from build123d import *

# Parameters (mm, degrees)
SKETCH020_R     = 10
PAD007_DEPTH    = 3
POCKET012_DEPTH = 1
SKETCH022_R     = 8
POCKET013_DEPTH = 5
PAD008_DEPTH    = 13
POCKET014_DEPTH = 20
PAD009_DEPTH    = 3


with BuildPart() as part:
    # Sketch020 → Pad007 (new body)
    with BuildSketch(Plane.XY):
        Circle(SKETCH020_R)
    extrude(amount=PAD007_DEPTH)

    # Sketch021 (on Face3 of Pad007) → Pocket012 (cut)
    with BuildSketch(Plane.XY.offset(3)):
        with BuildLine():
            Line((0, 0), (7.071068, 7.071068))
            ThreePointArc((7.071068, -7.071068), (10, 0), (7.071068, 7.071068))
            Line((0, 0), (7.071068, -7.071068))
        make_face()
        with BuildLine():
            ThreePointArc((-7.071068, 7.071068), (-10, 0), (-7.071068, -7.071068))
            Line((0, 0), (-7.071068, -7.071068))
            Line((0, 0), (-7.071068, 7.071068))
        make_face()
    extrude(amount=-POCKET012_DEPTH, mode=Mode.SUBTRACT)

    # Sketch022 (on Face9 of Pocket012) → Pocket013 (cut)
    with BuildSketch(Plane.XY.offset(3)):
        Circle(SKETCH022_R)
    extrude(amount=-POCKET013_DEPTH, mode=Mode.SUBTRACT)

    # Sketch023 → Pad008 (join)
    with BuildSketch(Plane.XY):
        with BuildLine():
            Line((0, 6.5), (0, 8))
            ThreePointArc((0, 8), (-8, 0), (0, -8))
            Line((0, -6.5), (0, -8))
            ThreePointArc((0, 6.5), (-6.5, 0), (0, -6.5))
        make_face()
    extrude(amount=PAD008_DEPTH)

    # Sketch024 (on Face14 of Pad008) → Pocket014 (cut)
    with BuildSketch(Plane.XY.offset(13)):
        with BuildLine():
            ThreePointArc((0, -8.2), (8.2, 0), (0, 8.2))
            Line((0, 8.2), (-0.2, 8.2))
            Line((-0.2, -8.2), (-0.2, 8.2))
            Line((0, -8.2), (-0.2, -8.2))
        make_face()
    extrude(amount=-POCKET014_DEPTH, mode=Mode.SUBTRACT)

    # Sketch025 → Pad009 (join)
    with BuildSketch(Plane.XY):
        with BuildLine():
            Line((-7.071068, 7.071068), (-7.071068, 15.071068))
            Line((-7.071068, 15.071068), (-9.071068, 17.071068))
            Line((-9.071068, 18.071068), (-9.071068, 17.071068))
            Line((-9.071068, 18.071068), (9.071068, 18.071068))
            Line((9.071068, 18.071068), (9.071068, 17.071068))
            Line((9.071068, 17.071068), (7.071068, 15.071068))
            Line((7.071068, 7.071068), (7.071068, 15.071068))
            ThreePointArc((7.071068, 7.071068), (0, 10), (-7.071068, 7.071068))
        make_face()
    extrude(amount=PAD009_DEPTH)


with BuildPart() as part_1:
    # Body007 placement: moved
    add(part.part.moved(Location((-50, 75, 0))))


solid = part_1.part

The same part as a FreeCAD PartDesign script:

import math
import FreeCAD as App
import Part
import Sketcher

doc = App.newDocument("Part")
body = doc.addObject("PartDesign::Body", "Body")

sketch1 = body.newObject("Sketcher::SketchObject", "Sketch")
sketch1.AttachmentSupport = (doc.getObject("XY_Plane"), [""])
sketch1.MapMode = "FlatFace"
sketch1.addGeometry(Part.Circle(App.Vector(0, 0, 0), App.Vector(0, 0, 1), 10), False)
sketch1.addConstraint(Sketcher.Constraint("Coincident", 0, 3, -1, 1))
sketch1.addConstraint(Sketcher.Constraint("Diameter", 0, 20.0))
pad1 = body.newObject("PartDesign::Pad", "Pad")
pad1.Profile = sketch1
pad1.Length = 3

sketch2 = body.newObject("Sketcher::SketchObject", "Sketch001")
sketch2.AttachmentSupport = (doc.getObject("XY_Plane"), [""])
sketch2.MapMode = "FlatFace"
sketch2.AttachmentOffset = App.Placement(App.Vector(0, 0, 3), App.Rotation())
sketch2.addGeometry(Part.LineSegment(App.Vector(7, 7, 0), App.Vector(0, 0, 0)), False)
sketch2.addGeometry(Part.LineSegment(App.Vector(0, 0, 0), App.Vector(7, -7, 0)), False)
sketch2.addGeometry(Part.ArcOfCircle(Part.Circle(App.Vector(0, 0, 0), App.Vector(0, 0, 1), 10), math.radians(-45), math.radians(45)), False)
sketch2.addGeometry(Part.ArcOfCircle(Part.Circle(App.Vector(0, 0, 0), App.Vector(0, 0, 1), 10), math.radians(135), math.radians(225)), False)
sketch2.addGeometry(Part.LineSegment(App.Vector(-7, -7, 0), App.Vector(0, 0, 0)), False)
sketch2.addGeometry(Part.LineSegment(App.Vector(0, 0, 0), App.Vector(-7, 7, 0)), False)
sketch2.addConstraint(Sketcher.Constraint("Coincident", 0, 2, 1, 1))
sketch2.addConstraint(Sketcher.Constraint("Coincident", 1, 2, 2, 1))
sketch2.addConstraint(Sketcher.Constraint("Coincident", 2, 2, 0, 1))
sketch2.addConstraint(Sketcher.Constraint("Coincident", 3, 2, 4, 1))
sketch2.addConstraint(Sketcher.Constraint("Coincident", 4, 2, 5, 1))
sketch2.addConstraint(Sketcher.Constraint("Coincident", 5, 2, 3, 1))
sketch2.addConstraint(Sketcher.Constraint("Coincident", 2, 3, -1, 1))
sketch2.addConstraint(Sketcher.Constraint("Coincident", 3, 3, -1, 1))
sketch2.addConstraint(Sketcher.Constraint("Coincident", 0, 2, -1, 1))
sketch2.addConstraint(Sketcher.Constraint("Coincident", 4, 2, -1, 1))
sketch2.addConstraint(Sketcher.Constraint("Equal", 2, 3))
sketch2.addConstraint(Sketcher.Constraint("Perpendicular", 0, 1))
sketch2.addConstraint(Sketcher.Constraint("Perpendicular", 1, 4))
sketch2.addConstraint(Sketcher.Constraint("Perpendicular", 4, 5))
sketch2.addConstraint(Sketcher.Constraint("Horizontal", 1, 2, 3, 2))
sketch2.addConstraint(Sketcher.Constraint("Radius", 2, 10.000001))
pocket1 = body.newObject("PartDesign::Pocket", "Pocket")
pocket1.Profile = sketch2
pocket1.Length = 1

sketch3 = body.newObject("Sketcher::SketchObject", "Sketch002")
sketch3.AttachmentSupport = (doc.getObject("XY_Plane"), [""])
sketch3.MapMode = "FlatFace"
sketch3.AttachmentOffset = App.Placement(App.Vector(0, 0, 3), App.Rotation())
sketch3.addGeometry(Part.Circle(App.Vector(0, 0, 0), App.Vector(0, 0, 1), 8), False)
sketch3.addConstraint(Sketcher.Constraint("Coincident", 0, 3, -1, 1))
sketch3.addConstraint(Sketcher.Constraint("Diameter", 0, 16.0))
pocket2 = body.newObject("PartDesign::Pocket", "Pocket001")
pocket2.Profile = sketch3
pocket2.Length = 5

sketch4 = body.newObject("Sketcher::SketchObject", "Sketch003")
sketch4.AttachmentSupport = (doc.getObject("XY_Plane"), [""])
sketch4.MapMode = "FlatFace"
sketch4.addGeometry(Part.LineSegment(App.Vector(0, 6.5, 0), App.Vector(0, 8, 0)), False)
sketch4.addGeometry(Part.ArcOfCircle(Part.Circle(App.Vector(0, 0, 0), App.Vector(0, 0, 1), 8), math.radians(90), math.radians(270)), False)
sketch4.addGeometry(Part.LineSegment(App.Vector(0, -8, 0), App.Vector(0, -6.5, 0)), False)
sketch4.addGeometry(Part.ArcOfCircle(Part.Circle(App.Vector(0, 0, 0), App.Vector(0, 0, 1), 6.5), math.radians(90), math.radians(270)), False)
sketch4.addConstraint(Sketcher.Constraint("Coincident", 0, 2, 1, 1))
sketch4.addConstraint(Sketcher.Constraint("Coincident", 1, 2, 2, 1))
sketch4.addConstraint(Sketcher.Constraint("Coincident", 2, 2, 3, 2))
sketch4.addConstraint(Sketcher.Constraint("Coincident", 3, 1, 0, 1))
sketch4.addConstraint(Sketcher.Constraint("Vertical", 0))
sketch4.addConstraint(Sketcher.Constraint("Vertical", 2))
sketch4.addConstraint(Sketcher.Constraint("Coincident", 1, 3, -1, 1))
sketch4.addConstraint(Sketcher.Constraint("Coincident", 3, 3, -1, 1))
sketch4.addConstraint(Sketcher.Constraint("PointOnObject", 0, 2, -2))
sketch4.addConstraint(Sketcher.Constraint("PointOnObject", 1, 2, -2))
sketch4.addConstraint(Sketcher.Constraint("Radius", 1, 8.0))
sketch4.addConstraint(Sketcher.Constraint("Radius", 3, 6.5))
pad2 = body.newObject("PartDesign::Pad", "Pad001")
pad2.Profile = sketch4
pad2.Length = 13

sketch5 = body.newObject("Sketcher::SketchObject", "Sketch004")
sketch5.AttachmentSupport = (doc.getObject("XY_Plane"), [""])
sketch5.MapMode = "FlatFace"
sketch5.AttachmentOffset = App.Placement(App.Vector(0, 0, 13), App.Rotation())
sketch5.addGeometry(Part.ArcOfCircle(Part.Circle(App.Vector(0, 0, 0), App.Vector(0, 0, 1), 8.2), math.radians(-90), math.radians(90)), False)
sketch5.addGeometry(Part.LineSegment(App.Vector(0, 8.2, 0), App.Vector(-0.2, 8.2, 0)), False)
sketch5.addGeometry(Part.LineSegment(App.Vector(-0.2, 8.2, 0), App.Vector(-0.2, -8.2, 0)), False)
sketch5.addGeometry(Part.LineSegment(App.Vector(-0.2, -8.2, 0), App.Vector(0, -8.2, 0)), False)
sketch5.addConstraint(Sketcher.Constraint("Tangent", 0, 2, 1, 1))
sketch5.addConstraint(Sketcher.Constraint("Coincident", 1, 2, 2, 1))
sketch5.addConstraint(Sketcher.Constraint("Coincident", 2, 2, 3, 1))
sketch5.addConstraint(Sketcher.Constraint("Tangent", 3, 2, 0, 1))
sketch5.addConstraint(Sketcher.Constraint("Horizontal", 1))
sketch5.addConstraint(Sketcher.Constraint("Vertical", 2))
sketch5.addConstraint(Sketcher.Constraint("Horizontal", 3))
sketch5.addConstraint(Sketcher.Constraint("Coincident", 0, 3, -1, 1))
sketch5.addConstraint(Sketcher.Constraint("Radius", 0, 8.2))
sketch5.addConstraint(Sketcher.Constraint("DistanceX", 1, 2, 1, 1, 0.2))
pocket3 = body.newObject("PartDesign::Pocket", "Pocket002")
pocket3.Profile = sketch5
pocket3.Length = 20

sketch6 = body.newObject("Sketcher::SketchObject", "Sketch005")
sketch6.AttachmentSupport = (doc.getObject("XY_Plane"), [""])
sketch6.MapMode = "FlatFace"
sketch6.addGeometry(Part.LineSegment(App.Vector(-7.1, 15.1, 0), App.Vector(-7.1, 7.1, 0)), False)
sketch6.addGeometry(Part.ArcOfCircle(Part.Circle(App.Vector(0, 0, 0), App.Vector(0, 0, 1), 10), math.radians(45), math.radians(135)), False)
sketch6.addGeometry(Part.LineSegment(App.Vector(7.1, 7.1, 0), App.Vector(7.1, 15.1, 0)), False)
sketch6.addGeometry(Part.LineSegment(App.Vector(7.1, 15.1, 0), App.Vector(9.1, 17.1, 0)), False)
sketch6.addGeometry(Part.LineSegment(App.Vector(9.1, 17.1, 0), App.Vector(9.1, 18.1, 0)), False)
sketch6.addGeometry(Part.LineSegment(App.Vector(9.1, 18.1, 0), App.Vector(-9.1, 18.1, 0)), False)
sketch6.addGeometry(Part.LineSegment(App.Vector(-9.1, 18.1, 0), App.Vector(-9.1, 17.1, 0)), False)
sketch6.addGeometry(Part.LineSegment(App.Vector(-9.1, 17.1, 0), App.Vector(-7.1, 15.1, 0)), False)
sketch6.addConstraint(Sketcher.Constraint("Coincident", 0, 2, 1, 2))
sketch6.addConstraint(Sketcher.Constraint("Coincident", 1, 1, 2, 1))
sketch6.addConstraint(Sketcher.Constraint("Coincident", 2, 2, 3, 1))
sketch6.addConstraint(Sketcher.Constraint("Coincident", 3, 2, 4, 1))
sketch6.addConstraint(Sketcher.Constraint("Coincident", 4, 2, 5, 1))
sketch6.addConstraint(Sketcher.Constraint("Coincident", 5, 2, 6, 1))
sketch6.addConstraint(Sketcher.Constraint("Coincident", 6, 2, 7, 1))
sketch6.addConstraint(Sketcher.Constraint("Coincident", 7, 2, 0, 1))
sketch6.addConstraint(Sketcher.Constraint("Vertical", 0))
sketch6.addConstraint(Sketcher.Constraint("Vertical", 2))
sketch6.addConstraint(Sketcher.Constraint("Vertical", 4))
sketch6.addConstraint(Sketcher.Constraint("Horizontal", 5))
sketch6.addConstraint(Sketcher.Constraint("Vertical", 6))
sketch6.addConstraint(Sketcher.Constraint("Coincident", 1, 3, -1, 1))
sketch6.addConstraint(Sketcher.Constraint("Symmetric", 3, 2, 6, 2, -2))
sketch6.addConstraint(Sketcher.Constraint("Symmetric", 2, 2, 7, 2, -2))
sketch6.addConstraint(Sketcher.Constraint("Perpendicular", 3, 7))
sketch6.addConstraint(Sketcher.Constraint("Radius", 1, 10.000001))
sketch6.addConstraint(Sketcher.Constraint("DistanceY", 0, 2, 0, 1, 8.0))
sketch6.addConstraint(Sketcher.Constraint("DistanceY", 4, 1, 4, 2, 1.0))
sketch6.addConstraint(Sketcher.Constraint("DistanceX", 2, 2, 3, 2, 2.0))
sketch6.addConstraint(Sketcher.Constraint("DistanceX", 5, 2, 5, 1, 18.142136))
pad3 = body.newObject("PartDesign::Pad", "Pad002")
pad3.Profile = sketch6
pad3.Length = 3
body2 = doc.addObject("PartDesign::Body", "Body001")
doc.recompute()

body.Placement = App.Placement(App.Vector(-50, 75, 0), App.Rotation(App.Vector(0, 0, 1), 0))
boolean = body2.newObject("PartDesign::Boolean", "Boolean")
boolean.Type = "Fuse"
boolean.addObjects([body])

doc.recompute()
